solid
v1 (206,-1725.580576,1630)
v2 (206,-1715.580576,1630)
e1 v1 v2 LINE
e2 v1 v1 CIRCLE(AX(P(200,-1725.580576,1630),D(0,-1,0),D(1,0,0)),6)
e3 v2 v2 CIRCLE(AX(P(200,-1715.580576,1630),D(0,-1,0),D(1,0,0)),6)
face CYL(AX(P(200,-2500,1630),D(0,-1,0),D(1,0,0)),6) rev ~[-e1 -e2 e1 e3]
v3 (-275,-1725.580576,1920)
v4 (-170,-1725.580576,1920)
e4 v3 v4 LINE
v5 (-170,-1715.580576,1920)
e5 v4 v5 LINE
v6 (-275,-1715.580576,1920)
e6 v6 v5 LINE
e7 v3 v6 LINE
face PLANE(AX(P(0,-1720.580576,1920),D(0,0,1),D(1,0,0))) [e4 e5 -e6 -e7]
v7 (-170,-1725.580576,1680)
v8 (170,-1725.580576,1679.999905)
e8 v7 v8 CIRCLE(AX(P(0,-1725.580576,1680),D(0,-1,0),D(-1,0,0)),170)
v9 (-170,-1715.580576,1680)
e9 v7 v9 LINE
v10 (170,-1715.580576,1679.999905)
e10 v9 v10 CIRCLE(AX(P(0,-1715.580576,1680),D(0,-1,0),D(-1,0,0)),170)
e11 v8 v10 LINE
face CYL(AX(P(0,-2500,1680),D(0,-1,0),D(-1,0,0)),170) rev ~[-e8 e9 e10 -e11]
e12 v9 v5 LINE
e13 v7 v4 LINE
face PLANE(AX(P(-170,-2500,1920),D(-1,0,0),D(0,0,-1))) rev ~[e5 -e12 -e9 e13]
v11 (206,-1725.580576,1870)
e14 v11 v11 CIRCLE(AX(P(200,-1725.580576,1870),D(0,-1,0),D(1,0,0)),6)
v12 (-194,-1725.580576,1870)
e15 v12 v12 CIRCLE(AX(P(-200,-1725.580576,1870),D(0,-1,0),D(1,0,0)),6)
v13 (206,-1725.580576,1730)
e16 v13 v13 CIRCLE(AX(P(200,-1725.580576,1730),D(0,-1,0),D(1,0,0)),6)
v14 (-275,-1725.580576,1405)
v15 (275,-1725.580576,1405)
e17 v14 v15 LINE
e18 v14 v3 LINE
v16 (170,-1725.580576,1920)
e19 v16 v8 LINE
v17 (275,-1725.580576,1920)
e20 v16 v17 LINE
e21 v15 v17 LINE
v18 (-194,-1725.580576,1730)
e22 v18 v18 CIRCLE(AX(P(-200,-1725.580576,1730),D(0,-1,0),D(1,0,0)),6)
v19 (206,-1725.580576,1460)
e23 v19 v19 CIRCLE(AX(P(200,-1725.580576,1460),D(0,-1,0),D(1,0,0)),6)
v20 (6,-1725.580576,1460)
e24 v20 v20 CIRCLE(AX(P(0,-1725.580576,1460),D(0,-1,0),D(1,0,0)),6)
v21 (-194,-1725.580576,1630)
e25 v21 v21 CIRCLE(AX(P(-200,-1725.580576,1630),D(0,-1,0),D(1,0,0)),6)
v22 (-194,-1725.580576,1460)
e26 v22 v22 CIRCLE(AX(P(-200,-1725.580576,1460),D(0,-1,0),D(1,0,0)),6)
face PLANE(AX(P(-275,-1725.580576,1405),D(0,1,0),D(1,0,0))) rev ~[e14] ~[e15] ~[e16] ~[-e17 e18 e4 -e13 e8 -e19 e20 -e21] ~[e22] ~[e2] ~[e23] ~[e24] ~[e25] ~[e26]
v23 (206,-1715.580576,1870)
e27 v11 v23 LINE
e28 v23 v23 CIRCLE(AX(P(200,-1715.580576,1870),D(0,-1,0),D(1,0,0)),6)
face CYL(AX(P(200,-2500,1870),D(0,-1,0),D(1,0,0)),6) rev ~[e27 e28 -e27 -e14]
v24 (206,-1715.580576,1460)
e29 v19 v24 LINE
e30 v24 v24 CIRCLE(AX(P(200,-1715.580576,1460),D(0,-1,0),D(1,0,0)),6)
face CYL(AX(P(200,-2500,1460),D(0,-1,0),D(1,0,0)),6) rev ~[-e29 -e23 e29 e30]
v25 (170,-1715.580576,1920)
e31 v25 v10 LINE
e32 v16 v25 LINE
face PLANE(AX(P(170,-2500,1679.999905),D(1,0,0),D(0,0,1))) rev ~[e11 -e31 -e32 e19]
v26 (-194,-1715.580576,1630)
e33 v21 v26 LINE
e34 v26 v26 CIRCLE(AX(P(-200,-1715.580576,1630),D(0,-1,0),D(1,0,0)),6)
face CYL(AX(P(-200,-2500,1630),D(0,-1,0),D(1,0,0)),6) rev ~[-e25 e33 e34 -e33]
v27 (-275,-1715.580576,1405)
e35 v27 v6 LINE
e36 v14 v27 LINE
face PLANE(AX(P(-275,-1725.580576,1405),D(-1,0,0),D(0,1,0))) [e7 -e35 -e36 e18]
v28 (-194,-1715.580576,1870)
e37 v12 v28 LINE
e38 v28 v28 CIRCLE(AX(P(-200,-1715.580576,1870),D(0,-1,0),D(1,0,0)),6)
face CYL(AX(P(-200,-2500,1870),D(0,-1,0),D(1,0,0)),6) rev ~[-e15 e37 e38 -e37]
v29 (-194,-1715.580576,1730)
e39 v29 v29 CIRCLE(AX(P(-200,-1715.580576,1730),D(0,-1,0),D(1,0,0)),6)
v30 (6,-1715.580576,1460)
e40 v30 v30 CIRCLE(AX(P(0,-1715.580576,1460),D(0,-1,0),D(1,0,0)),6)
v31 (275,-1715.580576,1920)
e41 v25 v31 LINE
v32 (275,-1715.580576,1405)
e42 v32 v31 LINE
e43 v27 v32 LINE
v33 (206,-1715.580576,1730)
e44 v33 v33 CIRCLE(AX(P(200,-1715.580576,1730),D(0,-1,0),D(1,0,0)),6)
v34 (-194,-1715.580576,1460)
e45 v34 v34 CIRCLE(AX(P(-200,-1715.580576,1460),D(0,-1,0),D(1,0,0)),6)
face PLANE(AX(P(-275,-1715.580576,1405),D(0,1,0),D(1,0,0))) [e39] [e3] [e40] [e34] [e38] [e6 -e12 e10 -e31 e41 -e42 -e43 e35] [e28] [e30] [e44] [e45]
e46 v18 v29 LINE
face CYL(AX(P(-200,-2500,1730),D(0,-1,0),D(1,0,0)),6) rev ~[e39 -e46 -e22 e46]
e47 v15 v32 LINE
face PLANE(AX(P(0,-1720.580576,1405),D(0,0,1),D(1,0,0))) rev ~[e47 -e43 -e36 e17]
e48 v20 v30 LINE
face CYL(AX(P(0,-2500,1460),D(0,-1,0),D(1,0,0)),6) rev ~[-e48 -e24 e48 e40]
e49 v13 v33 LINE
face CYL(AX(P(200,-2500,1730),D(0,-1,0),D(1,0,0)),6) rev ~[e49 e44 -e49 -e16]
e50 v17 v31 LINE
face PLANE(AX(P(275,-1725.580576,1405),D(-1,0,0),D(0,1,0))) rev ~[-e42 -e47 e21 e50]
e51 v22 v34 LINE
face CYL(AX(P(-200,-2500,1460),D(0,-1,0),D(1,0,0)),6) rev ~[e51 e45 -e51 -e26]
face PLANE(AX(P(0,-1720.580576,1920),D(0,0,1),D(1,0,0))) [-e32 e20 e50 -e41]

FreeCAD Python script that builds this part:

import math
import FreeCAD as App
import Part
import Sketcher
from FreeCAD import Vector

doc = App.newDocument("Part")
body = doc.addObject("PartDesign::Body", "Body")
body.AllowCompound = True

sketch1 = body.newObject("Sketcher::SketchObject", "Sketch")
sketch1.AttachmentSupport = (doc.getObject("XZ_Plane"), [""])
sketch1.MapMode = "FlatFace"
sketch1.AttachmentOffset = App.Placement(Vector(0, 0, 2500), App.Rotation())
sketch1.addGeometry(Part.Circle(Vector(-200, 1730, 0), Vector(0, 0, 1), 6), False)
sketch1.addGeometry(Part.Circle(Vector(-200, 1870, 0), Vector(0, 0, 1), 6), False)
sketch1.addGeometry(Part.Circle(Vector(200, 1870, 0), Vector(0, 0, 1), 6), False)
sketch1.addGeometry(Part.Circle(Vector(200, 1730, 0), Vector(0, 0, 1), 6), False)
sketch1.addGeometry(Part.Circle(Vector(-200, 1630, 0), Vector(0, 0, 1), 6), False)
sketch1.addGeometry(Part.Circle(Vector(-200, 1460, 0), Vector(0, 0, 1), 6), False)
sketch1.addGeometry(Part.Circle(Vector(200, 1630, 0), Vector(0, 0, 1), 6), False)
sketch1.addGeometry(Part.Circle(Vector(200, 1460, 0), Vector(0, 0, 1), 6), False)
sketch1.addGeometry(Part.Circle(Vector(0, 1460, 0), Vector(0, 0, 1), 6), False)
sketch1.addConstraint(Sketcher.Constraint("Equal", 0, 1))
sketch1.addConstraint(Sketcher.Constraint("Equal", 1, 2))
sketch1.addConstraint(Sketcher.Constraint("Equal", 2, 3))
sketch1.addConstraint(Sketcher.Constraint("Equal", 3, 4))
sketch1.addConstraint(Sketcher.Constraint("Equal", 4, 5))
sketch1.addConstraint(Sketcher.Constraint("Equal", 5, 6))
sketch1.addConstraint(Sketcher.Constraint("Equal", 6, 7))
sketch1.addConstraint(Sketcher.Constraint("Equal", 7, 8))
sketch1.addConstraint(Sketcher.Constraint("Symmetric", 1, 3, 2, 3, -2))
sketch1.addConstraint(Sketcher.Constraint("Symmetric", 0, 3, 3, 3, -2))
sketch1.addConstraint(Sketcher.Constraint("Symmetric", 4, 3, 6, 3, -2))
sketch1.addConstraint(Sketcher.Constraint("Symmetric", 5, 3, 7, 3, -2))
sketch1.addConstraint(Sketcher.Constraint("PointOnObject", 8, 3, -2))
sketch1.addConstraint(Sketcher.Constraint("Horizontal", 7, 3, 8, 3))
sketch1.addConstraint(Sketcher.Constraint("Vertical", 0, 3, 1, 3))
sketch1.addConstraint(Sketcher.Constraint("Vertical", 1, 3, 4, 3))
sketch1.addConstraint(Sketcher.Constraint("Vertical", 4, 3, 5, 3))
sketch1.addConstraint(Sketcher.Constraint("Diameter", 0, 12.0))
sketch1.addConstraint(Sketcher.Constraint("DistanceX", 0, 3, -1, 1, 200.0))
sketch1.addConstraint(Sketcher.Constraint("DistanceY", -1, 1, 0, 3, 1730.0))
sketch1.addConstraint(Sketcher.Constraint("DistanceY", -1, 1, 1, 3, 1870.0))
sketch1.addConstraint(Sketcher.Constraint("DistanceY", -1, 1, 4, 3, 1630.0))
sketch1.addConstraint(Sketcher.Constraint("DistanceY", -1, 1, 5, 3, 1460.0))
pad1 = body.newObject("PartDesign::Pad", "Pad")
pad1.Profile = sketch1
pad1.Length = 1000
pad1.Reversed = True
body2 = doc.addObject("PartDesign::Body", "Body001")

sketch2 = body2.newObject("Sketcher::SketchObject", "Sketch001")
sketch2.AttachmentSupport = (doc.getObject("XZ_Plane001"), [""])
sketch2.MapMode = "FlatFace"
sketch2.AttachmentOffset = App.Placement(Vector(0, 0, 2500), App.Rotation())
sketch2.addGeometry(Part.LineSegment(Vector(-170, 1920, 0), Vector(-170, 1680, 0)), False)
sketch2.addGeometry(Part.ArcOfCircle(Part.Circle(Vector(0, 1680, 0), Vector(0, 0, 1), 170), math.radians(180), math.radians(359.999968)), False)
sketch2.addGeometry(Part.LineSegment(Vector(170, 1679.999905, 0), Vector(170, 1920, 0)), False)
sketch2.addGeometry(Part.LineSegment(Vector(170, 1920, 0), Vector(-170, 1920, 0)), False)
sketch2.addConstraint(Sketcher.Constraint("Coincident", 0, 2, 1, 1))
sketch2.addConstraint(Sketcher.Constraint("Coincident", 1, 2, 2, 1))
sketch2.addConstraint(Sketcher.Constraint("Coincident", 2, 2, 3, 1))
sketch2.addConstraint(Sketcher.Constraint("Coincident", 3, 2, 0, 1))
sketch2.addConstraint(Sketcher.Constraint("Vertical", 0))
sketch2.addConstraint(Sketcher.Constraint("Vertical", 2))
sketch2.addConstraint(Sketcher.Constraint("Horizontal", 3))
sketch2.addConstraint(Sketcher.Constraint("PointOnObject", 1, 3, -2))
sketch2.addConstraint(Sketcher.Constraint("Radius", 1, 170.0))
sketch2.addConstraint(Sketcher.Constraint("DistanceY", 0, 2, 0, 1, 240.0))
sketch2.addConstraint(Sketcher.Constraint("DistanceY", -1, 1, 1, 3, 1680.0))
sketch2.addConstraint(Sketcher.Constraint("DistanceY", -1, 1, 0, 2, 1680.0))
sketch2.addConstraint(Sketcher.Constraint("DistanceY", 2, 1, 2, 2, 240.000095))
pad2 = body2.newObject("PartDesign::Pad", "Pad001")
pad2.Profile = sketch2
pad2.Length = 1000
pad2.Reversed = True
body3 = doc.addObject("PartDesign::Body", "Body002")

sketch3 = body3.newObject("Sketcher::SketchObject", "Sketch002")
sketch3.AttachmentSupport = (doc.getObject("XY_Plane002"), [""])
sketch3.MapMode = "FlatFace"
sketch3.AttachmentOffset = App.Placement(Vector(0, 0, 1405), App.Rotation())
sketch3.addGeometry(Part.LineSegment(Vector(-275, -1716, 0), Vector(-275, -1726, 0)), False)
sketch3.addGeometry(Part.LineSegment(Vector(-275, -1726, 0), Vector(275, -1726, 0)), False)
sketch3.addGeometry(Part.LineSegment(Vector(275, -1726, 0), Vector(275, -1716, 0)), False)
sketch3.addGeometry(Part.LineSegment(Vector(275, -1716, 0), Vector(-275, -1716, 0)), False)
sketch3.addConstraint(Sketcher.Constraint("Coincident", 0, 2, 1, 1))
sketch3.addConstraint(Sketcher.Constraint("Coincident", 1, 2, 2, 1))
sketch3.addConstraint(Sketcher.Constraint("Coincident", 2, 2, 3, 1))
sketch3.addConstraint(Sketcher.Constraint("Coincident", 3, 2, 0, 1))
sketch3.addConstraint(Sketcher.Constraint("Vertical", 0))
sketch3.addConstraint(Sketcher.Constraint("Horizontal", 1))
sketch3.addConstraint(Sketcher.Constraint("Vertical", 2))
sketch3.addConstraint(Sketcher.Constraint("Horizontal", 3))
sketch3.addConstraint(Sketcher.Constraint("DistanceX", 1, 1, 1, 2, 550.0))
sketch3.addConstraint(Sketcher.Constraint("DistanceY", 0, 2, 0, 1, 10.0))
sketch3.addConstraint(Sketcher.Constraint("DistanceX", 0, 2, -1, 1, 275.0))
sketch3.addConstraint(Sketcher.Constraint("DistanceY", 0, 2, -1, 1, 1725.580576))
pad3 = body3.newObject("PartDesign::Pad", "Pad002")
pad3.Profile = sketch3
pad3.Length = 515
doc.recompute()

boolean = body3.newObject("PartDesign::Boolean", "Boolean")
boolean.Type = "Cut"
boolean.addObjects([body2])
doc.recompute()

boolean2 = body3.newObject("PartDesign::Boolean", "Boolean001")
boolean2.Type = "Cut"
boolean2.addObjects([body])

doc.recompute()
